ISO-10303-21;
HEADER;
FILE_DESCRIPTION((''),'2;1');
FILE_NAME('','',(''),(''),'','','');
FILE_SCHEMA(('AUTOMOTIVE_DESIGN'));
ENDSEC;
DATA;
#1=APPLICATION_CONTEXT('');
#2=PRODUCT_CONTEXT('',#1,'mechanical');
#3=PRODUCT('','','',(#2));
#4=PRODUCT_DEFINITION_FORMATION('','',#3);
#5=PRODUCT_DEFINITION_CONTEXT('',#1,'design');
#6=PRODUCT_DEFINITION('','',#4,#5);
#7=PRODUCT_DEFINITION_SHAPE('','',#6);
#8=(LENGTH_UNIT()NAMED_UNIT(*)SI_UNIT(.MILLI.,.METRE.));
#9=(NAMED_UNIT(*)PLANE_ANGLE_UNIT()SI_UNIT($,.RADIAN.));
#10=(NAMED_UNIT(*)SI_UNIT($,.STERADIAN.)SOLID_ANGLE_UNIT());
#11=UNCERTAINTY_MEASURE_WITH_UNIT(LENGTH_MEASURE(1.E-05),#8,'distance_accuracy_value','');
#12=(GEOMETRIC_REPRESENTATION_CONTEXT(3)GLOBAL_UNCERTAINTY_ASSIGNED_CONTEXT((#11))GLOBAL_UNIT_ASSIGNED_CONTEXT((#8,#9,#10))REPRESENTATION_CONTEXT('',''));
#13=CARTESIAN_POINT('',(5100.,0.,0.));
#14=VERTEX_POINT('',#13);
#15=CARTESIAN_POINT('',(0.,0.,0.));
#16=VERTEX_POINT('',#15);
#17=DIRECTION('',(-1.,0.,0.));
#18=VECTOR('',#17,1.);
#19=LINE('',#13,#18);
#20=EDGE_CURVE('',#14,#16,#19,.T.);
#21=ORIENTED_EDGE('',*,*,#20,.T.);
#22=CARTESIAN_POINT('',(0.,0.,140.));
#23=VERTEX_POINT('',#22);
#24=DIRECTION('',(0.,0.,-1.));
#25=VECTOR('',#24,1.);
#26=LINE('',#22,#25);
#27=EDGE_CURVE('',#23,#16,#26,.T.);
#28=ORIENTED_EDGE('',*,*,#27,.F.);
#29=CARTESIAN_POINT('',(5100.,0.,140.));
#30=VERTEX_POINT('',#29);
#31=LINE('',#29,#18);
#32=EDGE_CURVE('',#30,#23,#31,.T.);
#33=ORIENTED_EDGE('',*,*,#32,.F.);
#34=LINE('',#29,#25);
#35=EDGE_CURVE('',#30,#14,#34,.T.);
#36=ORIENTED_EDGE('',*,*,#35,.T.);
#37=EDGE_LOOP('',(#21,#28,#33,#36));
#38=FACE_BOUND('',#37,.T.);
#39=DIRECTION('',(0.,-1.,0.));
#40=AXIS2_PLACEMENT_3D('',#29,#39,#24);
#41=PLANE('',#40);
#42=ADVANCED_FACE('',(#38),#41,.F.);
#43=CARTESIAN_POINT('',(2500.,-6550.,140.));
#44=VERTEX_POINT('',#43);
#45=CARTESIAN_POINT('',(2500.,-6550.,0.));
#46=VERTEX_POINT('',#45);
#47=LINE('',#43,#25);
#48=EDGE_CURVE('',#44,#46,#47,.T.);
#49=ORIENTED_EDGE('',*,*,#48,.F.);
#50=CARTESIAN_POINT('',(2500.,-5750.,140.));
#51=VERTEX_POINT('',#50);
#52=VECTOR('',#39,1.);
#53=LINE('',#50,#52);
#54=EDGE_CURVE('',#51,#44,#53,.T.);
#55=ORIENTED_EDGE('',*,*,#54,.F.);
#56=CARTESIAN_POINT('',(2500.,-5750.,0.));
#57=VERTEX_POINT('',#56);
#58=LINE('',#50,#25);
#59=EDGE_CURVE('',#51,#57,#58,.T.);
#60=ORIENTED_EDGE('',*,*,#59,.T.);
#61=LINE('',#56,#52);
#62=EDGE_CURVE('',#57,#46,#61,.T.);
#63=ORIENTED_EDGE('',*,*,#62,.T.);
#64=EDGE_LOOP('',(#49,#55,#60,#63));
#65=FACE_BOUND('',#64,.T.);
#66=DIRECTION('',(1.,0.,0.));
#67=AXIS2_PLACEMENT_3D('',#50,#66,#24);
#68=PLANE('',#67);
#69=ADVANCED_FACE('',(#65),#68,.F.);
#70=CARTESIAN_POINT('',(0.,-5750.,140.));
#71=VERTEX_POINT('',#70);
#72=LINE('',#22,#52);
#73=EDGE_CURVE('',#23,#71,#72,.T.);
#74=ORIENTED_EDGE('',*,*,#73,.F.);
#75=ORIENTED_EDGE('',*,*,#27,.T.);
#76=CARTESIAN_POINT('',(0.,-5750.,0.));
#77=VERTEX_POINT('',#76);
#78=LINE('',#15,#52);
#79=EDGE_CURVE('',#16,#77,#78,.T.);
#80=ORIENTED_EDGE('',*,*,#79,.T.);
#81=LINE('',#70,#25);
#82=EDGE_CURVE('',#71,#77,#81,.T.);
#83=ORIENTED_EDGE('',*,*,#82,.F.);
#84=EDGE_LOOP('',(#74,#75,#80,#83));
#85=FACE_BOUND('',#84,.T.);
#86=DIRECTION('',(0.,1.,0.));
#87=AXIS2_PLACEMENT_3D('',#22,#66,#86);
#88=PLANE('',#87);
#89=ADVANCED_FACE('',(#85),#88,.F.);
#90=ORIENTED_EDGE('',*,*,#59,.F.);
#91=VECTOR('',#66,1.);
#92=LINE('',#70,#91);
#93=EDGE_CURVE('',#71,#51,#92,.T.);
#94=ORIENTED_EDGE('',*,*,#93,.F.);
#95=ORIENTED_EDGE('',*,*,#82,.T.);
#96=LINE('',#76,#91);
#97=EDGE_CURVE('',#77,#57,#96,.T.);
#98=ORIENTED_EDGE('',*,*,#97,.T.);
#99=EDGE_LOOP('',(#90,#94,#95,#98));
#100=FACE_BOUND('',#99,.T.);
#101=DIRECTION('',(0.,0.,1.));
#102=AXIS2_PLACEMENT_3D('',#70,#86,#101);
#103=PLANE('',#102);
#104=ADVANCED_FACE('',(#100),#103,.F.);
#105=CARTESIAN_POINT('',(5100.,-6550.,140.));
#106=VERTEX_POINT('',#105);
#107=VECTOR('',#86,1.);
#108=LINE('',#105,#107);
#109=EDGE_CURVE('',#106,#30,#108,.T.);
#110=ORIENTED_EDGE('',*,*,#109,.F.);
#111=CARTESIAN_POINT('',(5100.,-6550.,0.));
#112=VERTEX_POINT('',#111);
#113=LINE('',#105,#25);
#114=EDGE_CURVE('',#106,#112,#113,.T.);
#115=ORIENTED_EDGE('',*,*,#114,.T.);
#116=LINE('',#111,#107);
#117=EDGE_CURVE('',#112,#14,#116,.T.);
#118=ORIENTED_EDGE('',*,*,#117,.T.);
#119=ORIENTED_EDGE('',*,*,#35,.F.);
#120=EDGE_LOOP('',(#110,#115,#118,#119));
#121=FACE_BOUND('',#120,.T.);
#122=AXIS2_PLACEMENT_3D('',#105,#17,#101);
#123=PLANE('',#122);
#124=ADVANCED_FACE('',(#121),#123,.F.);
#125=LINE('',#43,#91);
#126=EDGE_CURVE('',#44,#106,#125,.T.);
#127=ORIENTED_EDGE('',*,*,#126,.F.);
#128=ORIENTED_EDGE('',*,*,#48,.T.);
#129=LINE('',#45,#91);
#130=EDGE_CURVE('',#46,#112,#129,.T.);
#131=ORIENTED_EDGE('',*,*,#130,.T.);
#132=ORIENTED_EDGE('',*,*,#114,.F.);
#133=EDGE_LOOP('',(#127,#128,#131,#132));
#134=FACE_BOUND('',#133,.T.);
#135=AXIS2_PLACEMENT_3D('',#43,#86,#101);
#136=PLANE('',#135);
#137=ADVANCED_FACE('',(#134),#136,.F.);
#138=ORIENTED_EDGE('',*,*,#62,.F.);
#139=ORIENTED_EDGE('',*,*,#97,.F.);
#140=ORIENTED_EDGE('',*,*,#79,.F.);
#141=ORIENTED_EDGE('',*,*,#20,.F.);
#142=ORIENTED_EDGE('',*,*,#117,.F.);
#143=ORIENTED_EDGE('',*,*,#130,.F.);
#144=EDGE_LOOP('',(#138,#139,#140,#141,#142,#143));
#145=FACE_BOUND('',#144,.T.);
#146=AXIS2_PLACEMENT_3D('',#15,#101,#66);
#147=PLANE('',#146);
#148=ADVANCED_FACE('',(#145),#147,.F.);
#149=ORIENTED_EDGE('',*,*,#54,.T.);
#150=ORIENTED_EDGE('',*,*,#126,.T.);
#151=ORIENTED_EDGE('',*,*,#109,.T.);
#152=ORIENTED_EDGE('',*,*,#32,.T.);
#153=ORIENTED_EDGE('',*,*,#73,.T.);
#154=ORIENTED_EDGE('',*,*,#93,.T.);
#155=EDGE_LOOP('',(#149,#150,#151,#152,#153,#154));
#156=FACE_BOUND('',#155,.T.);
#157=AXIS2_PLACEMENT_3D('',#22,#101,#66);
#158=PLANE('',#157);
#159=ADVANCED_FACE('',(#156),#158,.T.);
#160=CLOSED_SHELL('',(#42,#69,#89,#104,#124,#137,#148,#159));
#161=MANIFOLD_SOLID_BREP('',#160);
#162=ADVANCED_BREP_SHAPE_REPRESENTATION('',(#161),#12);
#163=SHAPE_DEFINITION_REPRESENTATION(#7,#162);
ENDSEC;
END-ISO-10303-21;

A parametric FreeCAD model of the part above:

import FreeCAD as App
import Part
import Sketcher


def add_polygon(sketch, points):
    """Adds a closed chain of lines whose ends are joined by coincident constraints."""
    first, n = sketch.GeometryCount, len(points)
    for a, b in zip(points, points[1:] + points[:1]):
        sketch.addGeometry(Part.LineSegment(App.Vector(*a, 0), App.Vector(*b, 0)), False)
    for i in range(n):
        sketch.addConstraint(Sketcher.Constraint("Coincident", first + i, 2, first + (i + 1) % n, 1))

doc = App.newDocument("Part")
body = doc.addObject("PartDesign::Body", "Body")

# Sketch on XY plane
sketch1 = body.newObject("Sketcher::SketchObject", "Sketch")
sketch1.AttachmentSupport = (doc.getObject("XY_Plane"), [""])
sketch1.MapMode = "FlatFace"
add_polygon(sketch1, [(0, 0), (0, -5750), (2500, -5750), (2500, -6550), (5100, -6550), (5100, 0)])  # lines 0-5
sketch1.addConstraint(Sketcher.Constraint("Vertical", 0))
sketch1.addConstraint(Sketcher.Constraint("Horizontal", 1))
sketch1.addConstraint(Sketcher.Constraint("Vertical", 2))
sketch1.addConstraint(Sketcher.Constraint("Horizontal", 3))
sketch1.addConstraint(Sketcher.Constraint("Vertical", 4))
sketch1.addConstraint(Sketcher.Constraint("Horizontal", 5))
sketch1.addConstraint(Sketcher.Constraint("Coincident", 5, 2, -1, 1))
sketch1.addConstraint(Sketcher.Constraint("DistanceX", 1, 1, 1, 2, 2500.0))
sketch1.addConstraint(Sketcher.Constraint("DistanceX", 3, 1, 3, 2, 2600.0))
sketch1.addConstraint(Sketcher.Constraint("DistanceY", 0, 2, 0, 1, 5750.0))
sketch1.addConstraint(Sketcher.Constraint("DistanceY", 2, 2, 2, 1, 800.0))
pad1 = body.newObject("PartDesign::Pad", "Pad")
pad1.Profile = sketch1
pad1.Length = 140

doc.recompute()
